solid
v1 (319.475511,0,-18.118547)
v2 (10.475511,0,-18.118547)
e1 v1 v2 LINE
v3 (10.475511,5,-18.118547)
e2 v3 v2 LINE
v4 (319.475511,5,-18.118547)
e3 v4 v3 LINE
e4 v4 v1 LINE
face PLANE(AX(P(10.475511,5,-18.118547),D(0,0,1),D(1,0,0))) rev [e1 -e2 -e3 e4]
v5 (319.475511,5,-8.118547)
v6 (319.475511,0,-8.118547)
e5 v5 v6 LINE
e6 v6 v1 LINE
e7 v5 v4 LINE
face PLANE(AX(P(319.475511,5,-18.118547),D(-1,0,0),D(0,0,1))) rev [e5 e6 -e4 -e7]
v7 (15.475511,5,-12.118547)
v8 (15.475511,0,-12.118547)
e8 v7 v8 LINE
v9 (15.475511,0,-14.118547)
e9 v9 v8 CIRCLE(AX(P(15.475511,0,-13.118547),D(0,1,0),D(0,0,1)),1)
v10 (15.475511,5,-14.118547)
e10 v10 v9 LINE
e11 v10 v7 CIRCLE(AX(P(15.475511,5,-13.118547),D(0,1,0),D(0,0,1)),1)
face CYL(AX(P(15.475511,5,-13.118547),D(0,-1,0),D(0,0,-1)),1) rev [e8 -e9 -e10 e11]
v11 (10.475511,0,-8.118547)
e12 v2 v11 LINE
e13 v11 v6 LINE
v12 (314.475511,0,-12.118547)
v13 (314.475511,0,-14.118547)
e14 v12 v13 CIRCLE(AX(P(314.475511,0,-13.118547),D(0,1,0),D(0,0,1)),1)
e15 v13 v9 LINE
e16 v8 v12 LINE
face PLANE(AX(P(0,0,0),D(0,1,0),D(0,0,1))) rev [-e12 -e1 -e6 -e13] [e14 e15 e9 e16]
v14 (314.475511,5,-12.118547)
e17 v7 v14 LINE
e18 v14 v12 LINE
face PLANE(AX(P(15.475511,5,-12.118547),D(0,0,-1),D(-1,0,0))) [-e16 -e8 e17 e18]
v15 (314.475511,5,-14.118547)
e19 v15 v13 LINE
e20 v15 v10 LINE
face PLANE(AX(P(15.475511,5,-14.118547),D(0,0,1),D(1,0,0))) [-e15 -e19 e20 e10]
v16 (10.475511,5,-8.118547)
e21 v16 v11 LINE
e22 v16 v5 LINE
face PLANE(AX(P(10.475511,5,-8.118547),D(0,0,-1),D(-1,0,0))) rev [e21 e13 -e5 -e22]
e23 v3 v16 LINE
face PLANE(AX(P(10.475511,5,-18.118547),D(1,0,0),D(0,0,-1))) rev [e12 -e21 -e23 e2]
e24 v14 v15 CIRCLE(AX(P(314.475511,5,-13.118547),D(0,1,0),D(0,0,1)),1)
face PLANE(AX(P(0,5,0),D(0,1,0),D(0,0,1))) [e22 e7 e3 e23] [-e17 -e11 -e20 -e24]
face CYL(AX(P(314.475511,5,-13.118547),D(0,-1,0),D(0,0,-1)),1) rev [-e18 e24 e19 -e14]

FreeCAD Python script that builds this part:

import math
import FreeCAD as App
import Part
import Sketcher
Q = App.Units.Quantity

doc = App.newDocument("Part")
body = doc.addObject("PartDesign::Body", "Body")

# Sketch on XZ plane
sketch1 = body.newObject("Sketcher::SketchObject", "Sketch")
sketch1.AttachmentSupport = (doc.getObject("XZ_Plane"), [""])
sketch1.MapMode = "FlatFace"
sketch1.addGeometry([
    Part.LineSegment(App.Vector(10.5, -18.1, 0), App.Vector(10.5, -8.1, 0)),  # 0
    Part.LineSegment(App.Vector(10.5, -8.1, 0), App.Vector(319.5, -8.1, 0)),  # 1
    Part.LineSegment(App.Vector(319.5, -8.1, 0), App.Vector(319.5, -18.1, 0)),  # 2
    Part.LineSegment(App.Vector(319.5, -18.1, 0), App.Vector(10.5, -18.1, 0)),  # 3
    Part.ArcOfCircle(Part.Circle(App.Vector(15.5, -13.1, 0), App.Vector(0, 0, 1), 1), math.radians(90), math.radians(270)),  # 4
    Part.LineSegment(App.Vector(15.5, -14.1, 0), App.Vector(314.5, -14.1, 0)),  # 5
    Part.ArcOfCircle(Part.Circle(App.Vector(314.5, -13.1, 0), App.Vector(0, 0, 1), 1), math.radians(-90), math.radians(90)),  # 6
    Part.LineSegment(App.Vector(314.5, -12.1, 0), App.Vector(15.5, -12.1, 0)),  # 7
], False)
sketch1.addConstraint([
    Sketcher.Constraint("Coincident", 0, 2, 1, 1),
    Sketcher.Constraint("Coincident", 1, 2, 2, 1),
    Sketcher.Constraint("Coincident", 2, 2, 3, 1),
    Sketcher.Constraint("Coincident", 3, 2, 0, 1),
    Sketcher.Constraint("Tangent", 4, 2, 5, 1),
    Sketcher.Constraint("Tangent", 5, 2, 6, 1),
    Sketcher.Constraint("Tangent", 6, 2, 7, 1),
    Sketcher.Constraint("Tangent", 7, 2, 4, 1),
    Sketcher.Constraint("Vertical", 0),
    Sketcher.Constraint("Horizontal", 1),
    Sketcher.Constraint("Vertical", 2),
    Sketcher.Constraint("Horizontal", 3),
    Sketcher.Constraint("Horizontal", 5),
    Sketcher.Constraint("Horizontal", 7),
    Sketcher.Constraint("Radius", 4, Q("1 mm")),
    Sketcher.Constraint("DistanceX", 1, 1, 1, 2, Q("309 mm")),
    Sketcher.Constraint("DistanceX", 5, 1, 5, 2, Q("299 mm")),
    Sketcher.Constraint("DistanceY", 0, 1, 0, 2, Q("10 mm")),
    Sketcher.Constraint("DistanceX", 0, 2, 4, 3, Q("5 mm")),
    Sketcher.Constraint("DistanceY", 4, 3, 0, 2, Q("5 mm")),
    Sketcher.Constraint("DistanceX", -1, 1, 4, 3, Q("15.475511 mm")),
    Sketcher.Constraint("DistanceY", 4, 3, -1, 1, Q("13.118547 mm")),
])
pad1 = body.newObject("PartDesign::Pad", "Pad")
pad1.Profile = sketch1
pad1.Length = 5
pad1.Reversed = True

doc.recompute()
